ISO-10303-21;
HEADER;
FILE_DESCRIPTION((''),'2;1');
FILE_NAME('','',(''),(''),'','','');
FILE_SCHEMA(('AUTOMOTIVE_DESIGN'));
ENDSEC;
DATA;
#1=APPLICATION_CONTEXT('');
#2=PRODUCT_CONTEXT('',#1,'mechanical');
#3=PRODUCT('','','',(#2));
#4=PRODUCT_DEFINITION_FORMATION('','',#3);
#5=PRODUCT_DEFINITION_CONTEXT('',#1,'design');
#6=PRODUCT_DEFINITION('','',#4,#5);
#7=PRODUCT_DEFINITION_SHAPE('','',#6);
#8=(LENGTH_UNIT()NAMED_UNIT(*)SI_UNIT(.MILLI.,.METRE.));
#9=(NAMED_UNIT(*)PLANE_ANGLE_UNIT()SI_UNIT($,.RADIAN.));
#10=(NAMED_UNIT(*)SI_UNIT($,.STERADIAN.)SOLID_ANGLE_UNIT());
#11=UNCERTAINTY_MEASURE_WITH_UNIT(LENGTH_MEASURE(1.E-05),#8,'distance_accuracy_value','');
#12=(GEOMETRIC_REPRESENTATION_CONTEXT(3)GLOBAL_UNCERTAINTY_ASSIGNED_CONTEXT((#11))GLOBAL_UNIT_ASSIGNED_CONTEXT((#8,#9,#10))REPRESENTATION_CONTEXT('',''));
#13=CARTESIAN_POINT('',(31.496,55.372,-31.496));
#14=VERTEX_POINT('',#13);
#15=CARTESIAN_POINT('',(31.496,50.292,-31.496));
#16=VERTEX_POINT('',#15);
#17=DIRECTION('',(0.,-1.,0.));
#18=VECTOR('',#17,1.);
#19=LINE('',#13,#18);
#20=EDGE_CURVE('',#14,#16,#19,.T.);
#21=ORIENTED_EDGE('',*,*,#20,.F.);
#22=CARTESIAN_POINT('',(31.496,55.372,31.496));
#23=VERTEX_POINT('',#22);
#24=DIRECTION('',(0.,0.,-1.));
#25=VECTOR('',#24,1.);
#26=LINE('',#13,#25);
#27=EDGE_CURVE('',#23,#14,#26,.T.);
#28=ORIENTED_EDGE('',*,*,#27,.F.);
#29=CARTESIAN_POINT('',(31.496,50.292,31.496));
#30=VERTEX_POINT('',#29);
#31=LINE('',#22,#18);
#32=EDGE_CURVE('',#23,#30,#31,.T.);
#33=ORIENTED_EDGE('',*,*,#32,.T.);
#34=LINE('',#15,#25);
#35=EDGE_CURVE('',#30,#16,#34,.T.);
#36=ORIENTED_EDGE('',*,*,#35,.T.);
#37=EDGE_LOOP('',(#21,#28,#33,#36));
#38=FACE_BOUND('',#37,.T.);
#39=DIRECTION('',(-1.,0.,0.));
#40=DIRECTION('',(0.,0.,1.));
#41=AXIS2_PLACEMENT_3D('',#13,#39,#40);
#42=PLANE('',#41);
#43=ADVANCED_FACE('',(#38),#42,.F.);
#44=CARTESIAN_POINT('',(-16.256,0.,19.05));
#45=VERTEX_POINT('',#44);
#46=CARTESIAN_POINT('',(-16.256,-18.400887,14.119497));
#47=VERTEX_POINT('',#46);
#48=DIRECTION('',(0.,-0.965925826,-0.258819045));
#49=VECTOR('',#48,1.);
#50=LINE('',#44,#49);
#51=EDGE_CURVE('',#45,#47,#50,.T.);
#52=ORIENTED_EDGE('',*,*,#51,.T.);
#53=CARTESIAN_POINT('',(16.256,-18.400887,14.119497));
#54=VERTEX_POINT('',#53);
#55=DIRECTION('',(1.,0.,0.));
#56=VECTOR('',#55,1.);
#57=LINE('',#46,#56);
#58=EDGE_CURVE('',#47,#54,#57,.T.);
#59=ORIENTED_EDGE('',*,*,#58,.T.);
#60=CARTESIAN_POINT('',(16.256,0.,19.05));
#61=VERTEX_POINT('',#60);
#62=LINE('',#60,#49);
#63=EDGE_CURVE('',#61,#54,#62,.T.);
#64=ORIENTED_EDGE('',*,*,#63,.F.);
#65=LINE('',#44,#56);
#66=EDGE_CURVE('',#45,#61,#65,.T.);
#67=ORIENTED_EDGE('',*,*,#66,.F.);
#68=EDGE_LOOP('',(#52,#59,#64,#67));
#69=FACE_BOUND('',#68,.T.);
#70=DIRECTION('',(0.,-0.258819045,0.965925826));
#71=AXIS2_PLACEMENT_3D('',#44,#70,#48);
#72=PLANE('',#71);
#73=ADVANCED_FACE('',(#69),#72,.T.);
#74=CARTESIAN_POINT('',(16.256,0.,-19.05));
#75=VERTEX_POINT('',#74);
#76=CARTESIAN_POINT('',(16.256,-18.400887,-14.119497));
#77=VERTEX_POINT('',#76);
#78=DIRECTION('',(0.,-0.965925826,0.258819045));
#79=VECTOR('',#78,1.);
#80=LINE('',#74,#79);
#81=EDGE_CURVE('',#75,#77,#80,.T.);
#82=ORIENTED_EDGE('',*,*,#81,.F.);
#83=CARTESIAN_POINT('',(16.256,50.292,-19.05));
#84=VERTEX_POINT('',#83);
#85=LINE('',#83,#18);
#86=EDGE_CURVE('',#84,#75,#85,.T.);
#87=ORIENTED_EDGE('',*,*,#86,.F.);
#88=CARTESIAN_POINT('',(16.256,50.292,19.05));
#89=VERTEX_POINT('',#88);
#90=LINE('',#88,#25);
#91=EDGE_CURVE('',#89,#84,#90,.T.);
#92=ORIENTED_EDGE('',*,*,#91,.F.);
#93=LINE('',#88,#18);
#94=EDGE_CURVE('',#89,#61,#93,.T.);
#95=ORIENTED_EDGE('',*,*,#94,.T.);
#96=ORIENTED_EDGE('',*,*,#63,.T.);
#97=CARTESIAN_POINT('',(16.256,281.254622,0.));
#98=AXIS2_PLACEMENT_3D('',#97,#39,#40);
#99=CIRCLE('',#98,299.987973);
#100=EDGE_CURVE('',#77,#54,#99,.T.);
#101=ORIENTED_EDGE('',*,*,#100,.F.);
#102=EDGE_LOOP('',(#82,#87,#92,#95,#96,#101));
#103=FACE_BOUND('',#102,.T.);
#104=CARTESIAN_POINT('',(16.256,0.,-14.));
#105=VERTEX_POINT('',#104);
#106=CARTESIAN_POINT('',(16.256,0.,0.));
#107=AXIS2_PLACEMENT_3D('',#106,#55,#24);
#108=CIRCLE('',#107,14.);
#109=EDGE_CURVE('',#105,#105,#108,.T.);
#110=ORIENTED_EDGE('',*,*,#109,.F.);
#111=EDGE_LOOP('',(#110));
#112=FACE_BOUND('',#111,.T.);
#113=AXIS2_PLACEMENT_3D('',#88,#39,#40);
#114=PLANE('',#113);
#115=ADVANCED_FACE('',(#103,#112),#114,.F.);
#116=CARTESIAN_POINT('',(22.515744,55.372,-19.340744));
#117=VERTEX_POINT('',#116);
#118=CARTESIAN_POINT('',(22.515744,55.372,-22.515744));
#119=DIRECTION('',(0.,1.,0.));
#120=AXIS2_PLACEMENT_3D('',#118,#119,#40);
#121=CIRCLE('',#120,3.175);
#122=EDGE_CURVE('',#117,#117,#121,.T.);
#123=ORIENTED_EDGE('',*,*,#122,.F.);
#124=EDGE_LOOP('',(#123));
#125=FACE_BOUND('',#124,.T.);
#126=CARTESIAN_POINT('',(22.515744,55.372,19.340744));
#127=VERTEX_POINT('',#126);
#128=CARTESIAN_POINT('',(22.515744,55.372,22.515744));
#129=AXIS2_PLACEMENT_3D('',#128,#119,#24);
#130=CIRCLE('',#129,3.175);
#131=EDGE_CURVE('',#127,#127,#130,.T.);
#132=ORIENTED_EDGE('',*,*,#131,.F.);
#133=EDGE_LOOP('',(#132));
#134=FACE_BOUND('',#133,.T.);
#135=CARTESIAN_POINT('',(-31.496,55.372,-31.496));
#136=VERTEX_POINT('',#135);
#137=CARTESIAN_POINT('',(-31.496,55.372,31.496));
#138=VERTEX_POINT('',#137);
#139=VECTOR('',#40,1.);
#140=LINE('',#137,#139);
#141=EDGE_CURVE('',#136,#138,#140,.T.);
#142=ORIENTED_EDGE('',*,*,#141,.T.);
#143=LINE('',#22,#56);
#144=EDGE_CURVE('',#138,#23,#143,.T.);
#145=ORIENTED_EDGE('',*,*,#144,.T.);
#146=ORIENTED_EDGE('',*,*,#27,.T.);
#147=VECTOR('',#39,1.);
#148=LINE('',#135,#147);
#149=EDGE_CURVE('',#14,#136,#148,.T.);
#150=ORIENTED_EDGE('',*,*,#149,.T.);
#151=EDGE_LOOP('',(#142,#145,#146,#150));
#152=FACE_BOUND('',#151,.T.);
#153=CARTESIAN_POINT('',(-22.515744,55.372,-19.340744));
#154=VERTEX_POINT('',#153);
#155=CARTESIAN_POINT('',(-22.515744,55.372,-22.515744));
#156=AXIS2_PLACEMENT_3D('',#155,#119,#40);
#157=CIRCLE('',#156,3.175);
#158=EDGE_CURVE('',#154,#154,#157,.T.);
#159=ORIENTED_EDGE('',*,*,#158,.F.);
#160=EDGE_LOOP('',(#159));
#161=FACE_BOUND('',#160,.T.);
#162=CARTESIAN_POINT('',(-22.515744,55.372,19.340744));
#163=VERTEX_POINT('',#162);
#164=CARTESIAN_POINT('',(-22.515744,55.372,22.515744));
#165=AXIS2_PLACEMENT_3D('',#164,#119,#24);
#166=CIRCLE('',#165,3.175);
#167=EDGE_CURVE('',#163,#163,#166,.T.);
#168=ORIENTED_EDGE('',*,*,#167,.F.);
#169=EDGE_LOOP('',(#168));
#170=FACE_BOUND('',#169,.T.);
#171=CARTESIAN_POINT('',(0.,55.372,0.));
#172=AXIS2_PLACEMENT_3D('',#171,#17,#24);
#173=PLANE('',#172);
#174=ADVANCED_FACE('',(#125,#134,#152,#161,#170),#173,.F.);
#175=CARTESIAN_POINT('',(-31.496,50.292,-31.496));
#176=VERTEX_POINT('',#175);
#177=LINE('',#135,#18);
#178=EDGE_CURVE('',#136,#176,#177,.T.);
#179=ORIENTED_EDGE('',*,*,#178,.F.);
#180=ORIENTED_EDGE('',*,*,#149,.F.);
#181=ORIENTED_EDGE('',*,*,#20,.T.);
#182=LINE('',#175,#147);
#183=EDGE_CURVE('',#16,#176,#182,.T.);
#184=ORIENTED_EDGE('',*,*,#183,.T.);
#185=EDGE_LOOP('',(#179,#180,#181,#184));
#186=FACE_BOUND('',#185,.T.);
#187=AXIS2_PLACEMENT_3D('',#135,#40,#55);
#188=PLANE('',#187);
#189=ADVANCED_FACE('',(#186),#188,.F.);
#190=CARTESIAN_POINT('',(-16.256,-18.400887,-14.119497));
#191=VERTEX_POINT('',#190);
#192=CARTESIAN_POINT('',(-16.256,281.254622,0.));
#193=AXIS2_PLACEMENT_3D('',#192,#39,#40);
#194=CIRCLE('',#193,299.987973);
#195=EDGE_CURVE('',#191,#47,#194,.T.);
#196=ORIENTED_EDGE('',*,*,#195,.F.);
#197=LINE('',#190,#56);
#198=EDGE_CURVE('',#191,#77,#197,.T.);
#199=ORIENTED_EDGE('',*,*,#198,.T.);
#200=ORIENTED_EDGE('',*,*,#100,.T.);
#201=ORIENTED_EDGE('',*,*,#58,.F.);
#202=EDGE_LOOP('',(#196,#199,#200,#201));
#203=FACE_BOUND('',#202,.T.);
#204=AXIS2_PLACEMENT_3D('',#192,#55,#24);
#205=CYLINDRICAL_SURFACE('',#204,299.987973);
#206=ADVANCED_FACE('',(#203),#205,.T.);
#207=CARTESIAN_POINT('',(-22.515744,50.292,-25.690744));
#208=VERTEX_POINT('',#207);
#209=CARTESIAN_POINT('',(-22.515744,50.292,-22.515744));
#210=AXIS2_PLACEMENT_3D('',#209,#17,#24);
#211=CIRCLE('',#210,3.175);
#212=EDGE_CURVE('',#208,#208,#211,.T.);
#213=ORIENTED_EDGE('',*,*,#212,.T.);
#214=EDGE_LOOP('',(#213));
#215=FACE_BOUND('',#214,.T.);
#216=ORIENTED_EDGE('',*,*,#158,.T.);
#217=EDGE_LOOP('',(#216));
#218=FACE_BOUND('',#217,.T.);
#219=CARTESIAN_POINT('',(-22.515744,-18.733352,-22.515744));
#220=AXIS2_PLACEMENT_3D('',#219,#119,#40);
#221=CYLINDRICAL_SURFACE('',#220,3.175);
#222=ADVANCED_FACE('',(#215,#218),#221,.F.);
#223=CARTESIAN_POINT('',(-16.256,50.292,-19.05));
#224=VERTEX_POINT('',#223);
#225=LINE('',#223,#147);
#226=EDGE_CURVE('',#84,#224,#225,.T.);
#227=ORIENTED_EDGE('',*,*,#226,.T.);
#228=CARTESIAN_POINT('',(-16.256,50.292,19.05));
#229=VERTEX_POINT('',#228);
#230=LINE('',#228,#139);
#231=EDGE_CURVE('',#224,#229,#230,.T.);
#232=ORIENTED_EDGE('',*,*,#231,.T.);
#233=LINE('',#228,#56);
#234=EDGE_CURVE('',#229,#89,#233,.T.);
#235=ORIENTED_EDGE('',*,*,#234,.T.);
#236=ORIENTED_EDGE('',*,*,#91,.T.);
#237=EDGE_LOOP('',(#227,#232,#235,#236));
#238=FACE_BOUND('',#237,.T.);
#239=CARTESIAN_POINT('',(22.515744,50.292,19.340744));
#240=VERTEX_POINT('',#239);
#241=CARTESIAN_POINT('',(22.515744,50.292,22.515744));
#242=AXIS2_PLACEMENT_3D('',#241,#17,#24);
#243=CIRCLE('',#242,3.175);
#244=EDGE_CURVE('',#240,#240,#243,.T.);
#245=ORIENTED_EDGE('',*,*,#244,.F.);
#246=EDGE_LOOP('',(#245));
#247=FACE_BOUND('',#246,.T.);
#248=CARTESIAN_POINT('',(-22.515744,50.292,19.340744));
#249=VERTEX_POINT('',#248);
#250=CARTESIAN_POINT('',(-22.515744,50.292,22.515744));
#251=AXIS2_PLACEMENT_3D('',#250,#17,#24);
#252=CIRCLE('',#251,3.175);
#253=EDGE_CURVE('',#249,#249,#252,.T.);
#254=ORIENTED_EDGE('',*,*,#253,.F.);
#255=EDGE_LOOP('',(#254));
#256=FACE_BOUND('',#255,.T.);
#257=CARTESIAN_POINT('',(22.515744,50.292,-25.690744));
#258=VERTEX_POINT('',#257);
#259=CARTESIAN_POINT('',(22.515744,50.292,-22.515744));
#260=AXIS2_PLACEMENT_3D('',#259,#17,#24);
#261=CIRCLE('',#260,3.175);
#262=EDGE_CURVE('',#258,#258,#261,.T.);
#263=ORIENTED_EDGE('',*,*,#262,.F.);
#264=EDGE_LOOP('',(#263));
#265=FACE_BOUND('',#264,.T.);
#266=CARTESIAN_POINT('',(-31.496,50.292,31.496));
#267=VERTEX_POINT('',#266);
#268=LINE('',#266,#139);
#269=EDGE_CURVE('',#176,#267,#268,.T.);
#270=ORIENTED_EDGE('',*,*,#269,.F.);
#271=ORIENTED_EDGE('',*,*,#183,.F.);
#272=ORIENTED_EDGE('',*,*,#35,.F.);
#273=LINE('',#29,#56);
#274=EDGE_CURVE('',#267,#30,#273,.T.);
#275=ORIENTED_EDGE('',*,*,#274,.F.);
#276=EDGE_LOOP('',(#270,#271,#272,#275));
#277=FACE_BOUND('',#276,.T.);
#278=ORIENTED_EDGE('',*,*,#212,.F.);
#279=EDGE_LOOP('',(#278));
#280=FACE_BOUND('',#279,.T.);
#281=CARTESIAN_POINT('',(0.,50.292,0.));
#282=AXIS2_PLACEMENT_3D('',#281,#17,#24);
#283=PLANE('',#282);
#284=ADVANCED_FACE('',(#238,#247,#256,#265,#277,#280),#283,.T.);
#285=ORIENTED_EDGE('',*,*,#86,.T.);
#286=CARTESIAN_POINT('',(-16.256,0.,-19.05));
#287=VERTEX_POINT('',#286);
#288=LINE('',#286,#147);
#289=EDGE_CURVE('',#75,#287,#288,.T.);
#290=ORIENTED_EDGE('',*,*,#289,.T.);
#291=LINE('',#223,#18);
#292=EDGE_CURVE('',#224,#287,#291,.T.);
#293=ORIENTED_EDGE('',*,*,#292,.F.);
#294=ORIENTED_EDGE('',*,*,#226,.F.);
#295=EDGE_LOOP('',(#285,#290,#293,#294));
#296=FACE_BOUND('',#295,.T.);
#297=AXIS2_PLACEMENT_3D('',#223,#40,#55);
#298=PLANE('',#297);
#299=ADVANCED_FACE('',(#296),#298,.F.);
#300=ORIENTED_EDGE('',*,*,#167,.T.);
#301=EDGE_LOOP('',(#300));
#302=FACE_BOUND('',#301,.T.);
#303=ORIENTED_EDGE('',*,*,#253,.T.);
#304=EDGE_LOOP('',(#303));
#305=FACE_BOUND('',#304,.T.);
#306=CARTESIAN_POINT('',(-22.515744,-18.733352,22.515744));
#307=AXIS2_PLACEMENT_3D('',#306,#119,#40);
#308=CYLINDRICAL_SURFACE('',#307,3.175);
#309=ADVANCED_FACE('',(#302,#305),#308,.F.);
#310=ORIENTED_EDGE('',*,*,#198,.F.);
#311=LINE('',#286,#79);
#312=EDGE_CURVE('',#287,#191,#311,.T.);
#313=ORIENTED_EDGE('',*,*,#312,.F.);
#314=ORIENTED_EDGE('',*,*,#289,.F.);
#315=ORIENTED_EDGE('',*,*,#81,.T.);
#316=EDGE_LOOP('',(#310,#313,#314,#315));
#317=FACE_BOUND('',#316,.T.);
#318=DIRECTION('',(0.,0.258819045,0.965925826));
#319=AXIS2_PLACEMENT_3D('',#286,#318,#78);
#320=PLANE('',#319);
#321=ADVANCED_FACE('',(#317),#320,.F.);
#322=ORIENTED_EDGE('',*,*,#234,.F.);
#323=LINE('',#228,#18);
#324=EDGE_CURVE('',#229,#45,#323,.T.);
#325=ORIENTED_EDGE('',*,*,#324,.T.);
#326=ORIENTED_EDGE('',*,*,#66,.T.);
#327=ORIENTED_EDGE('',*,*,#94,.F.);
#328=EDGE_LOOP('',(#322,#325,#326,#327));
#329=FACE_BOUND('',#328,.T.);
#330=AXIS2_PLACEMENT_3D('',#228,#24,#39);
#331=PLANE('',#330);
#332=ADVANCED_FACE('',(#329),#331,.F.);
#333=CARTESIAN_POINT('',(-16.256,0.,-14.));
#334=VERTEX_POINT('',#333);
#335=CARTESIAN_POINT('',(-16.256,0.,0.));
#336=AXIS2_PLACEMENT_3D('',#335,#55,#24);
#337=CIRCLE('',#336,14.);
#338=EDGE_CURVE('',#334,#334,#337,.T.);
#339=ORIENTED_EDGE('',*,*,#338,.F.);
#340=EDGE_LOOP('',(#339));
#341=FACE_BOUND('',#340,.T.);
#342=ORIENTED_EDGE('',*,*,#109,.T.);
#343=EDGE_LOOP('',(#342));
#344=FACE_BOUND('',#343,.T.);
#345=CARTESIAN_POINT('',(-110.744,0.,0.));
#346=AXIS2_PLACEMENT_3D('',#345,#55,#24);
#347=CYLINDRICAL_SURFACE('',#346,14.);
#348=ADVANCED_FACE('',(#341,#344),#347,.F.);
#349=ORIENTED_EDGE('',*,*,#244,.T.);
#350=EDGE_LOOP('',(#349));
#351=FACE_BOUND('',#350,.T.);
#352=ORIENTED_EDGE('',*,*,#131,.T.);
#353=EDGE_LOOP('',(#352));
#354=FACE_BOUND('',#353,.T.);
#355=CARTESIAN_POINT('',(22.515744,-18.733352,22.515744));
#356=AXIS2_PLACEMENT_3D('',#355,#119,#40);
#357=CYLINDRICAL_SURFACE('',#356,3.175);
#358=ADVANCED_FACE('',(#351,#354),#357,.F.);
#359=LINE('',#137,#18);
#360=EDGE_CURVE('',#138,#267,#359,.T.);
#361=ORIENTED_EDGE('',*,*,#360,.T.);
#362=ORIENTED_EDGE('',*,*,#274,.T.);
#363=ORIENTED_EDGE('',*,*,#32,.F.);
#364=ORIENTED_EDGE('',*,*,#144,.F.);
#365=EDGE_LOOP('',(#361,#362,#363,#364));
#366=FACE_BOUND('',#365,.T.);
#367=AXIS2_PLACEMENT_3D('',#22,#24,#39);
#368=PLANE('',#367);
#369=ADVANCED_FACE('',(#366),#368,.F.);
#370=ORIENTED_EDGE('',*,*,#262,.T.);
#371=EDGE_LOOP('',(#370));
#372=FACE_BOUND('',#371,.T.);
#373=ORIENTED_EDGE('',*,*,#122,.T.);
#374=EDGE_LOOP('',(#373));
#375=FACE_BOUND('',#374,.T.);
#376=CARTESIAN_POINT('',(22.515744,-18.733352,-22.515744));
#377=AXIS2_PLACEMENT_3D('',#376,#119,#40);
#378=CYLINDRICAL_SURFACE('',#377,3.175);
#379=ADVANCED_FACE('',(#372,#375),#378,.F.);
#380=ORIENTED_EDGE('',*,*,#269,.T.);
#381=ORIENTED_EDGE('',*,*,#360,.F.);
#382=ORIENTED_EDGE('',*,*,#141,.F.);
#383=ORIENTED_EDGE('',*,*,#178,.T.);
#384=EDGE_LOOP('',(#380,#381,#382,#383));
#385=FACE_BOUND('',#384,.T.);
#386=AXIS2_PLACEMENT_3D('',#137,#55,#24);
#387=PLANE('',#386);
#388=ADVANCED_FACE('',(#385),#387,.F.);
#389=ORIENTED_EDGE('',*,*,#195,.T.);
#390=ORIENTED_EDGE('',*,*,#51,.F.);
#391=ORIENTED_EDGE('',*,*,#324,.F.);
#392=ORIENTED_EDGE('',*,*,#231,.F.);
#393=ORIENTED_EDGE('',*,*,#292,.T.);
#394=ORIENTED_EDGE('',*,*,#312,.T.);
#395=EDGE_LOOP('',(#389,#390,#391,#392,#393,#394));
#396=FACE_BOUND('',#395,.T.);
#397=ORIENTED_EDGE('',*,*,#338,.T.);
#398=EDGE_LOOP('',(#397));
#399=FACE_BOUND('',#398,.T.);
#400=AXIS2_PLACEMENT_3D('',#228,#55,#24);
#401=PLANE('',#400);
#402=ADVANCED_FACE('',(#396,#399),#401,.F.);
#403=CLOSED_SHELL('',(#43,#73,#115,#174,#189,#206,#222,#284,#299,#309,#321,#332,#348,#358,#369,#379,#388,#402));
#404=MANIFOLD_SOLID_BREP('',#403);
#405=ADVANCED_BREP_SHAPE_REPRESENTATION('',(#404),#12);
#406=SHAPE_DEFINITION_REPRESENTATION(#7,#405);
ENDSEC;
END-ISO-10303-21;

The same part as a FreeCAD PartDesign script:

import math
import FreeCAD as App
import Part
import Sketcher
Q = App.Units.Quantity

doc = App.newDocument("Part")
body = doc.addObject("PartDesign::Body", "Body")

sketch1 = doc.addObject("Sketcher::SketchObject", "Sketch")
body.addObject(sketch1)
sketch1.AttachmentSupport = (doc.XZ_Plane, [""])
sketch1.MapMode = "FlatFace"
sketch1.addGeometry(Part.LineSegment(App.Vector(-16, -19, 0), App.Vector(-16, 19, 0)), False)
sketch1.addGeometry(Part.LineSegment(App.Vector(-16, 19, 0), App.Vector(16, 19, 0)), False)
sketch1.addGeometry(Part.LineSegment(App.Vector(16, 19, 0), App.Vector(16, -19, 0)), False)
sketch1.addGeometry(Part.LineSegment(App.Vector(16, -19, 0), App.Vector(-16, -19, 0)), False)
sketch1.addConstraint(Sketcher.Constraint("Coincident", 0, 2, 1, 1))
sketch1.addConstraint(Sketcher.Constraint("Coincident", 1, 2, 2, 1))
sketch1.addConstraint(Sketcher.Constraint("Coincident", 2, 2, 3, 1))
sketch1.addConstraint(Sketcher.Constraint("Coincident", 3, 2, 0, 1))
sketch1.addConstraint(Sketcher.Constraint("Vertical", 0))
sketch1.addConstraint(Sketcher.Constraint("Horizontal", 1))
sketch1.addConstraint(Sketcher.Constraint("Vertical", 2))
sketch1.addConstraint(Sketcher.Constraint("Horizontal", 3))
sketch1.addConstraint(Sketcher.Constraint("Symmetric", 0, 2, 2, 2, -1, 1))
sketch1.addConstraint(Sketcher.Constraint("DistanceY", 0, 1, 0, 2, Q("1.5 in")))
sketch1.addConstraint(Sketcher.Constraint("DistanceX", 1, 1, 1, 2, Q("1.28 in")))
pad1 = doc.addObject("PartDesign::Pad", "Pad")
body.addObject(pad1)
pad1.Profile = sketch1
pad1.Length = Q("1.98 in")
pad1.Reversed = True

sketch2 = doc.addObject("Sketcher::SketchObject", "Sketch001")
body.addObject(sketch2)
sketch2.AttachmentSupport = (doc.YZ_Plane, [""])
sketch2.MapMode = "FlatFace"
sketch2.AttachmentOffset = App.Placement(App.Vector(0, 0, 0.64 * 25.4), App.Rotation())
sketch2.addGeometry(Part.LineSegment(App.Vector(0, 19, 0), App.Vector(-18, 14, 0)), False)
sketch2.addGeometry(Part.ArcOfCircle(Part.Circle(App.Vector(281, 0, 0), App.Vector(0, 0, 1), 300), math.radians(177.3), math.radians(182.7)), False)
sketch2.addGeometry(Part.LineSegment(App.Vector(-18, -14, 0), App.Vector(0, -19, 0)), False)
sketch2.addGeometry(Part.LineSegment(App.Vector(0, -19, 0), App.Vector(0, 19, 0)), False)
sketch2.addConstraint(Sketcher.Constraint("Coincident", 0, 2, 1, 1))
sketch2.addConstraint(Sketcher.Constraint("Coincident", 1, 2, 2, 1))
sketch2.addConstraint(Sketcher.Constraint("Coincident", 2, 2, 3, 1))
sketch2.addConstraint(Sketcher.Constraint("Coincident", 3, 2, 0, 1))
sketch2.addConstraint(Sketcher.Constraint("Vertical", 3))
sketch2.addConstraint(Sketcher.Constraint("Symmetric", 2, 2, 3, 2, -1, 1))
sketch2.addConstraint(Sketcher.Constraint("Symmetric", 0, 2, 1, 2, -1))
sketch2.addConstraint(Sketcher.Constraint("DistanceY", 3, 1, 3, 2, Q("1.5 in")))
sketch2.addConstraint(Sketcher.Constraint("Angle", 0, Q("-165 deg")))
sketch2.addConstraint(Sketcher.Constraint("Distance", 0, Q("0.75 in")))
sketch2.addConstraint(Sketcher.Constraint("Radius", 1, 299.987973))
pad2 = doc.addObject("PartDesign::Pad", "Pad001")
body.addObject(pad2)
pad2.Profile = sketch2
pad2.Length = Q("1.28 in")
pad2.Reversed = True

sketch3 = doc.addObject("Sketcher::SketchObject", "Sketch002")
body.addObject(sketch3)
sketch3.AttachmentSupport = (doc.YZ_Plane, [""])
sketch3.MapMode = "FlatFace"
sketch3.AttachmentOffset = App.Placement(App.Vector(0, 0, 0.64 * 25.4), App.Rotation())
sketch3.addGeometry(Part.Circle(App.Vector(0, 0, 0), App.Vector(0, 0, 1), 14), False)
sketch3.addConstraint(Sketcher.Constraint("Coincident", 0, 3, -1, 1))
sketch3.addConstraint(Sketcher.Constraint("Diameter", 0, 28.0))
pocket1 = doc.addObject("PartDesign::Pocket", "Pocket")
body.addObject(pocket1)
pocket1.Profile = sketch3
pocket1.Length = Q("5 in")

sketch4 = doc.addObject("Sketcher::SketchObject", "Sketch003")
body.addObject(sketch4)
sketch4.AttachmentSupport = (doc.XZ_Plane, [""])
sketch4.MapMode = "FlatFace"
sketch4.AttachmentOffset = App.Placement(App.Vector(0, 0, -1.98 * 25.4), App.Rotation())
sketch4.addGeometry(Part.LineSegment(App.Vector(-31, -31, 0), App.Vector(-31, 31, 0)), False)
sketch4.addGeometry(Part.LineSegment(App.Vector(-31, 31, 0), App.Vector(31, 31, 0)), False)
sketch4.addGeometry(Part.LineSegment(App.Vector(31, 31, 0), App.Vector(31, -31, 0)), False)
sketch4.addGeometry(Part.LineSegment(App.Vector(31, -31, 0), App.Vector(-31, -31, 0)), False)
sketch4.addConstraint(Sketcher.Constraint("Coincident", 0, 2, 1, 1))
sketch4.addConstraint(Sketcher.Constraint("Coincident", 1, 2, 2, 1))
sketch4.addConstraint(Sketcher.Constraint("Coincident", 2, 2, 3, 1))
sketch4.addConstraint(Sketcher.Constraint("Coincident", 3, 2, 0, 1))
sketch4.addConstraint(Sketcher.Constraint("Vertical", 0))
sketch4.addConstraint(Sketcher.Constraint("Horizontal", 1))
sketch4.addConstraint(Sketcher.Constraint("Vertical", 2))
sketch4.addConstraint(Sketcher.Constraint("Horizontal", 3))
sketch4.addConstraint(Sketcher.Constraint("Symmetric", 0, 2, 2, 2, -1, 1))
sketch4.addConstraint(Sketcher.Constraint("Equal", 3, 0))
sketch4.addConstraint(Sketcher.Constraint("DistanceX", 1, 1, 1, 2, Q("2.48 in")))
pad3 = doc.addObject("PartDesign::Pad", "Pad002")
body.addObject(pad3)
pad3.Profile = sketch4
pad3.Length = Q("0.2 in")
pad3.Reversed = True

sketch5 = doc.addObject("Sketcher::SketchObject", "Sketch004")
body.addObject(sketch5)
sketch5.AttachmentSupport = (doc.XZ_Plane, [""])
sketch5.MapMode = "FlatFace"
sketch5.AttachmentOffset = App.Placement(App.Vector(0, 0, -2.18 * 25.4), App.Rotation())
sketch5.addGeometry(Part.Circle(App.Vector(-22.5, -22.5, 0), App.Vector(0, 0, 1), 3.2), False)
sketch5.addGeometry(Part.Circle(App.Vector(22.5, -22.5, 0), App.Vector(0, 0, 1), 3.2), False)
sketch5.addGeometry(Part.Circle(App.Vector(-22.5, 22.5, 0), App.Vector(0, 0, 1), 3.2), False)
sketch5.addGeometry(Part.Circle(App.Vector(22.5, 22.5, 0), App.Vector(0, 0, 1), 3.2), False)
sketch5.addConstraint(Sketcher.Constraint("Equal", 0, 1))
sketch5.addConstraint(Sketcher.Constraint("Equal", 1, 2))
sketch5.addConstraint(Sketcher.Constraint("Equal", 2, 3))
sketch5.addConstraint(Sketcher.Constraint("Symmetric", 1, 3, 2, 3, -1, 1))
sketch5.addConstraint(Sketcher.Constraint("Symmetric", 0, 3, 3, 3, -1, 1))
sketch5.addConstraint(Sketcher.Constraint("Symmetric", 0, 3, 1, 3, -2))
sketch5.addConstraint(Sketcher.Constraint("Diameter", 0, Q("0.25 in")))
sketch5.addConstraint(Sketcher.Constraint("DistanceX", 0, 3, -1, 1, 22.515744))
sketch5.addConstraint(Sketcher.Constraint("DistanceY", 0, 3, -1, 1, 22.515744))
pocket2 = doc.addObject("PartDesign::Pocket", "Pocket001")
body.addObject(pocket2)
pocket2.Profile = sketch5
pocket2.Type = "ThroughAll"
pocket2.Reversed = True

doc.recompute()
